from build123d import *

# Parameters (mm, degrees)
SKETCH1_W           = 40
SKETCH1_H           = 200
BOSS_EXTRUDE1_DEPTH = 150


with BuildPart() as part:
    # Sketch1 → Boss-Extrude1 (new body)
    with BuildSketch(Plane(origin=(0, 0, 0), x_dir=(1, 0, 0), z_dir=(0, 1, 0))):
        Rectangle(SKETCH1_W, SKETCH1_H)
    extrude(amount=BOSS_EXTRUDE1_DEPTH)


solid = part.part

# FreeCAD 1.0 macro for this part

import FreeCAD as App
import Part
import Sketcher

doc = App.newDocument("Part")
params = doc.addObject("Spreadsheet::Sheet", "Params")
for row, (alias, value) in enumerate([
    ("sketch1_width", "40 mm"),
    ("sketch1_height", "200 mm"),
    ("pad1_length", "150 mm"),
], start=1):
    params.set(f"A{row}", alias)
    params.set(f"B{row}", "=" + value)
    params.setAlias(f"B{row}", alias)

body = doc.addObject("PartDesign::Body", "Body")

# Sketch on XZ plane
sketch1 = body.newObject("Sketcher::SketchObject", "Sketch")
sketch1.AttachmentSupport = (doc.getObject("XZ_Plane"), [""])
sketch1.MapMode = "FlatFace"
sketch1.addGeometry([
    Part.LineSegment(App.Vector(-20, -100, 0), App.Vector(-20, 100, 0)),
    Part.LineSegment(App.Vector(-20, 100, 0), App.Vector(20, 100, 0)),
    Part.LineSegment(App.Vector(20, 100, 0), App.Vector(20, -100, 0)),
    Part.LineSegment(App.Vector(20, -100, 0), App.Vector(-20, -100, 0)),
], False)
sketch1.addConstraint([
    Sketcher.Constraint("Coincident", 0, 2, 1, 1),
    Sketcher.Constraint("Coincident", 1, 2, 2, 1),
    Sketcher.Constraint("Coincident", 2, 2, 3, 1),
    Sketcher.Constraint("Coincident", 3, 2, 0, 1),
    Sketcher.Constraint("Vertical", 0),
    Sketcher.Constraint("Horizontal", 1),
    Sketcher.Constraint("Vertical", 2),
    Sketcher.Constraint("Horizontal", 3),
    Sketcher.Constraint("Symmetric", 0, 2, 2, 2, -1, 1),
    Sketcher.Constraint("DistanceX", 1, 1, 1, 2, 40.0),
    Sketcher.Constraint("DistanceY", 0, 1, 0, 2, 200.0),
])
sketch1.setExpression("Constraints[9]", "Params.sketch1_width")
sketch1.setExpression("Constraints[10]", "Params.sketch1_height")
pad1 = body.newObject("PartDesign::Pad", "Pad")
pad1.Profile = sketch1
pad1.setExpression("Length", "Params.pad1_length")
pad1.Reversed = True

doc.recompute()
